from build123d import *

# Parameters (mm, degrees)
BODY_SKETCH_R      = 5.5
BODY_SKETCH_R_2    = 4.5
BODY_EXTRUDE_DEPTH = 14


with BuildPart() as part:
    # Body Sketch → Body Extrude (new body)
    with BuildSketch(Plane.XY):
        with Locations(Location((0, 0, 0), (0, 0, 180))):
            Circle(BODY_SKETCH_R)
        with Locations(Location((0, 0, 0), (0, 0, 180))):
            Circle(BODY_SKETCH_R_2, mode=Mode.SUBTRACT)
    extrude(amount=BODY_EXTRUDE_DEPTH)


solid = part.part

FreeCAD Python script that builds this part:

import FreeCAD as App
import Part
import Sketcher
Q = App.Units.Quantity

doc = App.newDocument("Part")
params = doc.addObject("Spreadsheet::Sheet", "Params")
for row, (alias, value) in enumerate([
    ("sketch1_diameter", "11 mm"),
    ("sketch1_diameter2", "9 mm"),
    ("pad1_length", "14 mm"),
], start=1):
    params.set(f"A{row}", alias)
    params.set(f"B{row}", "=" + value)
    params.setAlias(f"B{row}", alias)

body = doc.addObject("PartDesign::Body", "Body")

# Sketch on XY plane
sketch1 = doc.addObject("Sketcher::SketchObject", "Sketch")
body.addObject(sketch1)
sketch1.AttachmentSupport = (doc.XY_Plane, [""])
sketch1.MapMode = "FlatFace"
sketch1.addGeometry(Part.Circle(App.Vector(0, 0, 0), App.Vector(0, 0, 1), 5.5), False)
sketch1.addGeometry(Part.Circle(App.Vector(0, 0, 0), App.Vector(0, 0, 1), 4.5), False)
sketch1.addConstraint(Sketcher.Constraint("Coincident", 0, 3, -1, 1))
sketch1.addConstraint(Sketcher.Constraint("Coincident", 1, 3, -1, 1))
sketch1.addConstraint(Sketcher.Constraint("Diameter", 0, Q("11 mm")))
sketch1.addConstraint(Sketcher.Constraint("Diameter", 1, Q("9 mm")))
sketch1.setExpression("Constraints[2]", "Params.sketch1_diameter")
sketch1.setExpression("Constraints[3]", "Params.sketch1_diameter2")
pad1 = doc.addObject("PartDesign::Pad", "Pad")
body.addObject(pad1)
pad1.Profile = sketch1
pad1.setExpression("Length", "Params.pad1_length")

doc.recompute()
